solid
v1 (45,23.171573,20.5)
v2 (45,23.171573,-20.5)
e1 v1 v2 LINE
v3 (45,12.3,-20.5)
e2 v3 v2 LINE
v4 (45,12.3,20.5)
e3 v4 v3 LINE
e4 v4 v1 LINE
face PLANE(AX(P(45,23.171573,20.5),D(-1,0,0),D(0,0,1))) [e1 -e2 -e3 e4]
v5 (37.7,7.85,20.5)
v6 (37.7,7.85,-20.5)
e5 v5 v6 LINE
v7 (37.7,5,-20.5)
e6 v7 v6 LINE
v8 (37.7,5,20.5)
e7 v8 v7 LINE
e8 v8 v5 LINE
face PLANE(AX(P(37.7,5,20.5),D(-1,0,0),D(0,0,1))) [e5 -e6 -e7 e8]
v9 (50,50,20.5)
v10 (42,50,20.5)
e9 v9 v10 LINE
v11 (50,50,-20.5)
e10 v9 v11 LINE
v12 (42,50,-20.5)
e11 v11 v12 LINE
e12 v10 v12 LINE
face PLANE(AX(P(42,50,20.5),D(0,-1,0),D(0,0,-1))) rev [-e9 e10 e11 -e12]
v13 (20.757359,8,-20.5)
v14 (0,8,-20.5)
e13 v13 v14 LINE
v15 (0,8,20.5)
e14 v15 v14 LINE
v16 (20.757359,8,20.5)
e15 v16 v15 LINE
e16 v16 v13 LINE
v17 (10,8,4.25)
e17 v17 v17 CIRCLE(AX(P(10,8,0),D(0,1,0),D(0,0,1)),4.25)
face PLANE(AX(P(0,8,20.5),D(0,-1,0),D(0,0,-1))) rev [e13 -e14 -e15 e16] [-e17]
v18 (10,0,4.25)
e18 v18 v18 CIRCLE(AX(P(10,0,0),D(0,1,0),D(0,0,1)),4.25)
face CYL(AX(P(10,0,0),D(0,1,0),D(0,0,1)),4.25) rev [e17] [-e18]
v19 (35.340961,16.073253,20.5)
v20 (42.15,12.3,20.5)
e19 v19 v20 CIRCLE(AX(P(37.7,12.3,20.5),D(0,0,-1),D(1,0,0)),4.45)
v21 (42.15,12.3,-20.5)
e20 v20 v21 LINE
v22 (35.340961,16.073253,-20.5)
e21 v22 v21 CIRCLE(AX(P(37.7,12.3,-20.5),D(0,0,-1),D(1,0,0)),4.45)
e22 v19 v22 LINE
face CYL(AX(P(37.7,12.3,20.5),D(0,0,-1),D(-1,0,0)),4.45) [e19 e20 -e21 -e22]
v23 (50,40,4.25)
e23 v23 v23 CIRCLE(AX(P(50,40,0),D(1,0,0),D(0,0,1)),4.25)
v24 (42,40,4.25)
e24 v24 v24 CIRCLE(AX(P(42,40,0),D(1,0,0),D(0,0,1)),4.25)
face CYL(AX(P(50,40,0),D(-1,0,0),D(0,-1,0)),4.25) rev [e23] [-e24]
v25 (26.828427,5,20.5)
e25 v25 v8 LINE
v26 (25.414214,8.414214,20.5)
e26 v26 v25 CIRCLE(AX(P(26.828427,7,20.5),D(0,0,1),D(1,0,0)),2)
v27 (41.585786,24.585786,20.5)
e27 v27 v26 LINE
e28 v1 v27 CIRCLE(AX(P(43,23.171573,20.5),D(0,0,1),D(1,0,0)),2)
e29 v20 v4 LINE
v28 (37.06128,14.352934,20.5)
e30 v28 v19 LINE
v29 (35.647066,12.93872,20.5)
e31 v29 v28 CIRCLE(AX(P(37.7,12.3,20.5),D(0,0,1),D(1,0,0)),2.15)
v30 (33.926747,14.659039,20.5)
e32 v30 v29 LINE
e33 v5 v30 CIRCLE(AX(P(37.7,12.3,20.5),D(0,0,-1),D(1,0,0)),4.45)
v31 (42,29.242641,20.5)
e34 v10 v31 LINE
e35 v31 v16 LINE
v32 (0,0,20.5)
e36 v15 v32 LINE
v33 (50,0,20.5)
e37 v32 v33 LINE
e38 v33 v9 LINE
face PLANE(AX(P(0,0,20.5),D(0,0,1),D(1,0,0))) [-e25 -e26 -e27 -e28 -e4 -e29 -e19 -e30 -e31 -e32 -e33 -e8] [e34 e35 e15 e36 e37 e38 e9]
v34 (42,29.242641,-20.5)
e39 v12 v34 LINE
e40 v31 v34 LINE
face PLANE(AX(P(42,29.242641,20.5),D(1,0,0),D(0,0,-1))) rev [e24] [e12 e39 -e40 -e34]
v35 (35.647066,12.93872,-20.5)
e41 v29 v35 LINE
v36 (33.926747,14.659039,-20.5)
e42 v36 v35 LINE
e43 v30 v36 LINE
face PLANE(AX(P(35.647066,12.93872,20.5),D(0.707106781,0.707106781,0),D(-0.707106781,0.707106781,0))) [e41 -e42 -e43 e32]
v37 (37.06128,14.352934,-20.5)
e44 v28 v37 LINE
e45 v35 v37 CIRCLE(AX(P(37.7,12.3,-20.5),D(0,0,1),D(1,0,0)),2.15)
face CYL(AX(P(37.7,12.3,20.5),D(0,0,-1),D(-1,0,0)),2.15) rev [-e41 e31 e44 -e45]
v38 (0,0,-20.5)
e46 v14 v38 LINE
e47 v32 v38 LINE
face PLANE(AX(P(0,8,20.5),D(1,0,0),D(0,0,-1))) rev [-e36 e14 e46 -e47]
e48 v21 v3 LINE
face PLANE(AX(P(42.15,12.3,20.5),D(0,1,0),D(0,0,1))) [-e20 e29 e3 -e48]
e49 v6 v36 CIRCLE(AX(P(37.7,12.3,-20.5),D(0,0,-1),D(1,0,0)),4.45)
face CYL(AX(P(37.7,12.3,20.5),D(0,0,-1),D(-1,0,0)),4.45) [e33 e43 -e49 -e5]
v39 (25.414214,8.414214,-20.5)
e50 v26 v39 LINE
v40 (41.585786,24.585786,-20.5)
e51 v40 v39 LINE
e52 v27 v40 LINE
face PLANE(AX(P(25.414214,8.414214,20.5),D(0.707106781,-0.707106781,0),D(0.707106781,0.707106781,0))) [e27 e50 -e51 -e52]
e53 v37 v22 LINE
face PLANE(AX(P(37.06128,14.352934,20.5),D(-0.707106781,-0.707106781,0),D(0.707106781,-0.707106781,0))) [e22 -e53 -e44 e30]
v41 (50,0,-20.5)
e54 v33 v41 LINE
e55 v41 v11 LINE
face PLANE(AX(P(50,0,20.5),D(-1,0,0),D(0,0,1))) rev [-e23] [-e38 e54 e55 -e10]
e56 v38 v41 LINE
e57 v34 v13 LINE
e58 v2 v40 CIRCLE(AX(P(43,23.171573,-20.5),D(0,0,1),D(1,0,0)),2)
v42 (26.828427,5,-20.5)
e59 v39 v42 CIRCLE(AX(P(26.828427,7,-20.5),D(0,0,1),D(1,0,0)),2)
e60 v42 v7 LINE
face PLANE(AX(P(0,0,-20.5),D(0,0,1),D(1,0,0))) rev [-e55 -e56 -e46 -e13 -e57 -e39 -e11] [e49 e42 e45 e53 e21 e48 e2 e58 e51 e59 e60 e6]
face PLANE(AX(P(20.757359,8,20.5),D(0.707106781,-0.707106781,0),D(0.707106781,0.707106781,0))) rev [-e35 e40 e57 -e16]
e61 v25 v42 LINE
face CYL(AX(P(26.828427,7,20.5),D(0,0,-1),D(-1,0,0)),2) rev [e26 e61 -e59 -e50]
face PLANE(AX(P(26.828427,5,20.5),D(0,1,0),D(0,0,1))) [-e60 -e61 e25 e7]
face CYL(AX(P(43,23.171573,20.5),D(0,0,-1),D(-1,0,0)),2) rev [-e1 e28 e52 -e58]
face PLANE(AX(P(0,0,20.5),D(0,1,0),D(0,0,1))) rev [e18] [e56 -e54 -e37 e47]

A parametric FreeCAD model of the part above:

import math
import FreeCAD as App
import Part
import Sketcher
from FreeCAD import Vector
Q = App.Units.Quantity


def add_polygon(sketch, points):
    """Adds a closed chain of lines whose ends are joined by coincident constraints."""
    first, n = sketch.GeometryCount, len(points)
    for a, b in zip(points, points[1:] + points[:1]):
        sketch.addGeometry(Part.LineSegment(App.Vector(*a, 0), App.Vector(*b, 0)), False)
    for i in range(n):
        sketch.addConstraint(Sketcher.Constraint("Coincident", first + i, 2, first + (i + 1) % n, 1))

doc = App.newDocument("Part")
body = doc.addObject("PartDesign::Body", "Body")

# Sketch on XY plane
sketch1 = body.newObject("Sketcher::SketchObject", "Sketch")
sketch1.AttachmentSupport = (doc.getObject("XY_Plane"), [""])
sketch1.MapMode = "FlatFace"
add_polygon(sketch1, [(0, 0), (50, 0), (50, 50), (42, 50), (42, 29.2), (20.8, 8), (0, 8)])  # lines 0-6
sketch1.addGeometry(Part.LineSegment(Vector(35.3, 16.1, 0), Vector(37.1, 14.4, 0)), False)  # 7
sketch1.addGeometry(Part.ArcOfCircle(Part.Circle(Vector(37.7, 12.3, 0), Vector(0, 0, 1), 2.1), math.radians(163), math.radians(467)), False)  # 8
sketch1.addGeometry(Part.LineSegment(Vector(35.6, 12.9, 0), Vector(33.9, 14.7, 0)), False)  # 9
sketch1.addGeometry(Part.ArcOfCircle(Part.Circle(Vector(37.7, 12.3, 0), Vector(0, 0, 1), 4.5), math.radians(148), math.radians(270)), False)  # 10
sketch1.addGeometry(Part.LineSegment(Vector(37.7, 7.8, 0), Vector(37.7, 5, 0)), False)  # 11
sketch1.addGeometry(Part.LineSegment(Vector(37.7, 5, 0), Vector(26.8, 5, 0)), False)  # 12
sketch1.addGeometry(Part.ArcOfCircle(Part.Circle(Vector(26.8, 7, 0), Vector(0, 0, 1), 2), math.radians(135), math.radians(270)), False)  # 13
sketch1.addGeometry(Part.LineSegment(Vector(25.4, 8.4, 0), Vector(41.6, 24.6, 0)), False)  # 14
sketch1.addGeometry(Part.ArcOfCircle(Part.Circle(Vector(43, 23.2, 0), Vector(0, 0, 1), 2), math.radians(0), math.radians(135)), False)  # 15
sketch1.addGeometry(Part.LineSegment(Vector(45, 23.2, 0), Vector(45, 12.3, 0)), False)  # 16
sketch1.addGeometry(Part.LineSegment(Vector(45, 12.3, 0), Vector(42.1, 12.3, 0)), False)  # 17
sketch1.addGeometry(Part.ArcOfCircle(Part.Circle(Vector(37.7, 12.3, 0), Vector(0, 0, 1), 4.5), math.radians(0), math.radians(122)), False)  # 18
sketch1.addConstraint([
    Sketcher.Constraint("Coincident", 7, 2, 8, 2),
    Sketcher.Constraint("Coincident", 8, 1, 9, 1),
    Sketcher.Constraint("Coincident", 9, 2, 10, 1),
    Sketcher.Constraint("Coincident", 10, 2, 11, 1),
    Sketcher.Constraint("Coincident", 11, 2, 12, 1),
    Sketcher.Constraint("Tangent", 12, 2, 13, 2),
    Sketcher.Constraint("Tangent", 13, 1, 14, 1),
    Sketcher.Constraint("Tangent", 14, 2, 15, 2),
    Sketcher.Constraint("Tangent", 15, 1, 16, 1),
    Sketcher.Constraint("Coincident", 16, 2, 17, 1),
    Sketcher.Constraint("Coincident", 17, 2, 18, 1),
    Sketcher.Constraint("Coincident", 18, 2, 7, 1),
    Sketcher.Constraint("Horizontal", 0),
    Sketcher.Constraint("Vertical", 1),
    Sketcher.Constraint("Horizontal", 2),
    Sketcher.Constraint("Vertical", 3),
    Sketcher.Constraint("Horizontal", 5),
    Sketcher.Constraint("Vertical", 6),
    Sketcher.Constraint("Vertical", 11),
    Sketcher.Constraint("Horizontal", 12),
    Sketcher.Constraint("Vertical", 16),
    Sketcher.Constraint("Horizontal", 17),
    Sketcher.Constraint("Coincident", 6, 2, -1, 1),
    Sketcher.Constraint("Coincident", 10, 3, 8, 3),
    Sketcher.Constraint("Coincident", 18, 3, 8, 3),
    Sketcher.Constraint("Equal", 13, 15),
    Sketcher.Constraint("Equal", 10, 18),
    Sketcher.Constraint("Perpendicular", 4, 7),
    Sketcher.Constraint("Parallel", 7, 9),
    Sketcher.Constraint("Perpendicular", 9, 14),
    Sketcher.Constraint("Horizontal", 18, 3, 16, 2),
    Sketcher.Constraint("Vertical", 18, 3, 10, 2),
    Sketcher.Constraint("Equal", 0, 1),
    Sketcher.Constraint("Equal", 5, 3),
    Sketcher.Constraint("Equal", 2, 6),
    Sketcher.Constraint("Equal", 17, 11),
    Sketcher.Constraint("Equal", 7, 9),
    Sketcher.Constraint("Radius", 13, Q("2 mm")),
    Sketcher.Constraint("DistanceX", 0, 1, 0, 2, Q("50 mm")),
    Sketcher.Constraint("DistanceX", 2, 2, 2, 1, Q("8 mm")),
    Sketcher.Constraint("Radius", 8, Q("2.15 mm")),
    Sketcher.Constraint("Radius", 10, Q("4.45 mm")),
    Sketcher.Constraint("DistanceY", -1, 1, 13, 3, Q("7 mm")),
    Sketcher.Constraint("DistanceX", -1, 1, 15, 3, Q("43 mm")),
    Sketcher.Constraint("DistanceX", 17, 2, 17, 1, Q("2.85 mm")),
    Sketcher.Constraint("Distance", 7, Q("2.432898 mm")),
    Sketcher.Constraint("DistanceX", 5, 2, 5, 1, Q("20.757359 mm")),
    Sketcher.Constraint("DistanceX", 12, 2, 12, 1, Q("10.871573 mm")),
])
pad1 = body.newObject("PartDesign::Pad", "Pad")
pad1.Profile = sketch1
pad1.Length = 41
pad1.Midplane = True

# Sketch on XZ plane
sketch2 = body.newObject("Sketcher::SketchObject", "Sketch001")
sketch2.AttachmentSupport = (doc.getObject("XZ_Plane"), [""])
sketch2.MapMode = "FlatFace"
sketch2.AttachmentOffset = App.Placement(Vector(0, 0, -8), App.Rotation())
sketch2.addGeometry(Part.Circle(Vector(10, 0, 0), Vector(0, 0, 1), 4.2), False)
sketch2.addConstraint([
    Sketcher.Constraint("PointOnObject", 0, 3, -1),
    Sketcher.Constraint("Diameter", 0, Q("8.5 mm")),
    Sketcher.Constraint("DistanceX", -1, 1, 0, 3, Q("10 mm")),
])
pocket1 = body.newObject("PartDesign::Pocket", "Pocket")
pocket1.Profile = sketch2
pocket1.Type = "ThroughAll"
pocket1.Reversed = True
doc.recompute()

datumplane = body.newObject("PartDesign::Plane", "DatumPlane")
datumplane.Placement = App.Placement(Vector(25, 25, 0), App.Rotation(Vector(-0.707106781, 0.707106781, 0), Vector(0, 0, -1), Vector(-0.707106781, -0.707106781, 0), "ZXY"))
mirrored = body.newObject("PartDesign::Mirrored", "Mirrored")
mirrored.Originals = [pocket1]
mirrored.MirrorPlane = (datumplane, [""])
body.Tip = mirrored

doc.recompute()
